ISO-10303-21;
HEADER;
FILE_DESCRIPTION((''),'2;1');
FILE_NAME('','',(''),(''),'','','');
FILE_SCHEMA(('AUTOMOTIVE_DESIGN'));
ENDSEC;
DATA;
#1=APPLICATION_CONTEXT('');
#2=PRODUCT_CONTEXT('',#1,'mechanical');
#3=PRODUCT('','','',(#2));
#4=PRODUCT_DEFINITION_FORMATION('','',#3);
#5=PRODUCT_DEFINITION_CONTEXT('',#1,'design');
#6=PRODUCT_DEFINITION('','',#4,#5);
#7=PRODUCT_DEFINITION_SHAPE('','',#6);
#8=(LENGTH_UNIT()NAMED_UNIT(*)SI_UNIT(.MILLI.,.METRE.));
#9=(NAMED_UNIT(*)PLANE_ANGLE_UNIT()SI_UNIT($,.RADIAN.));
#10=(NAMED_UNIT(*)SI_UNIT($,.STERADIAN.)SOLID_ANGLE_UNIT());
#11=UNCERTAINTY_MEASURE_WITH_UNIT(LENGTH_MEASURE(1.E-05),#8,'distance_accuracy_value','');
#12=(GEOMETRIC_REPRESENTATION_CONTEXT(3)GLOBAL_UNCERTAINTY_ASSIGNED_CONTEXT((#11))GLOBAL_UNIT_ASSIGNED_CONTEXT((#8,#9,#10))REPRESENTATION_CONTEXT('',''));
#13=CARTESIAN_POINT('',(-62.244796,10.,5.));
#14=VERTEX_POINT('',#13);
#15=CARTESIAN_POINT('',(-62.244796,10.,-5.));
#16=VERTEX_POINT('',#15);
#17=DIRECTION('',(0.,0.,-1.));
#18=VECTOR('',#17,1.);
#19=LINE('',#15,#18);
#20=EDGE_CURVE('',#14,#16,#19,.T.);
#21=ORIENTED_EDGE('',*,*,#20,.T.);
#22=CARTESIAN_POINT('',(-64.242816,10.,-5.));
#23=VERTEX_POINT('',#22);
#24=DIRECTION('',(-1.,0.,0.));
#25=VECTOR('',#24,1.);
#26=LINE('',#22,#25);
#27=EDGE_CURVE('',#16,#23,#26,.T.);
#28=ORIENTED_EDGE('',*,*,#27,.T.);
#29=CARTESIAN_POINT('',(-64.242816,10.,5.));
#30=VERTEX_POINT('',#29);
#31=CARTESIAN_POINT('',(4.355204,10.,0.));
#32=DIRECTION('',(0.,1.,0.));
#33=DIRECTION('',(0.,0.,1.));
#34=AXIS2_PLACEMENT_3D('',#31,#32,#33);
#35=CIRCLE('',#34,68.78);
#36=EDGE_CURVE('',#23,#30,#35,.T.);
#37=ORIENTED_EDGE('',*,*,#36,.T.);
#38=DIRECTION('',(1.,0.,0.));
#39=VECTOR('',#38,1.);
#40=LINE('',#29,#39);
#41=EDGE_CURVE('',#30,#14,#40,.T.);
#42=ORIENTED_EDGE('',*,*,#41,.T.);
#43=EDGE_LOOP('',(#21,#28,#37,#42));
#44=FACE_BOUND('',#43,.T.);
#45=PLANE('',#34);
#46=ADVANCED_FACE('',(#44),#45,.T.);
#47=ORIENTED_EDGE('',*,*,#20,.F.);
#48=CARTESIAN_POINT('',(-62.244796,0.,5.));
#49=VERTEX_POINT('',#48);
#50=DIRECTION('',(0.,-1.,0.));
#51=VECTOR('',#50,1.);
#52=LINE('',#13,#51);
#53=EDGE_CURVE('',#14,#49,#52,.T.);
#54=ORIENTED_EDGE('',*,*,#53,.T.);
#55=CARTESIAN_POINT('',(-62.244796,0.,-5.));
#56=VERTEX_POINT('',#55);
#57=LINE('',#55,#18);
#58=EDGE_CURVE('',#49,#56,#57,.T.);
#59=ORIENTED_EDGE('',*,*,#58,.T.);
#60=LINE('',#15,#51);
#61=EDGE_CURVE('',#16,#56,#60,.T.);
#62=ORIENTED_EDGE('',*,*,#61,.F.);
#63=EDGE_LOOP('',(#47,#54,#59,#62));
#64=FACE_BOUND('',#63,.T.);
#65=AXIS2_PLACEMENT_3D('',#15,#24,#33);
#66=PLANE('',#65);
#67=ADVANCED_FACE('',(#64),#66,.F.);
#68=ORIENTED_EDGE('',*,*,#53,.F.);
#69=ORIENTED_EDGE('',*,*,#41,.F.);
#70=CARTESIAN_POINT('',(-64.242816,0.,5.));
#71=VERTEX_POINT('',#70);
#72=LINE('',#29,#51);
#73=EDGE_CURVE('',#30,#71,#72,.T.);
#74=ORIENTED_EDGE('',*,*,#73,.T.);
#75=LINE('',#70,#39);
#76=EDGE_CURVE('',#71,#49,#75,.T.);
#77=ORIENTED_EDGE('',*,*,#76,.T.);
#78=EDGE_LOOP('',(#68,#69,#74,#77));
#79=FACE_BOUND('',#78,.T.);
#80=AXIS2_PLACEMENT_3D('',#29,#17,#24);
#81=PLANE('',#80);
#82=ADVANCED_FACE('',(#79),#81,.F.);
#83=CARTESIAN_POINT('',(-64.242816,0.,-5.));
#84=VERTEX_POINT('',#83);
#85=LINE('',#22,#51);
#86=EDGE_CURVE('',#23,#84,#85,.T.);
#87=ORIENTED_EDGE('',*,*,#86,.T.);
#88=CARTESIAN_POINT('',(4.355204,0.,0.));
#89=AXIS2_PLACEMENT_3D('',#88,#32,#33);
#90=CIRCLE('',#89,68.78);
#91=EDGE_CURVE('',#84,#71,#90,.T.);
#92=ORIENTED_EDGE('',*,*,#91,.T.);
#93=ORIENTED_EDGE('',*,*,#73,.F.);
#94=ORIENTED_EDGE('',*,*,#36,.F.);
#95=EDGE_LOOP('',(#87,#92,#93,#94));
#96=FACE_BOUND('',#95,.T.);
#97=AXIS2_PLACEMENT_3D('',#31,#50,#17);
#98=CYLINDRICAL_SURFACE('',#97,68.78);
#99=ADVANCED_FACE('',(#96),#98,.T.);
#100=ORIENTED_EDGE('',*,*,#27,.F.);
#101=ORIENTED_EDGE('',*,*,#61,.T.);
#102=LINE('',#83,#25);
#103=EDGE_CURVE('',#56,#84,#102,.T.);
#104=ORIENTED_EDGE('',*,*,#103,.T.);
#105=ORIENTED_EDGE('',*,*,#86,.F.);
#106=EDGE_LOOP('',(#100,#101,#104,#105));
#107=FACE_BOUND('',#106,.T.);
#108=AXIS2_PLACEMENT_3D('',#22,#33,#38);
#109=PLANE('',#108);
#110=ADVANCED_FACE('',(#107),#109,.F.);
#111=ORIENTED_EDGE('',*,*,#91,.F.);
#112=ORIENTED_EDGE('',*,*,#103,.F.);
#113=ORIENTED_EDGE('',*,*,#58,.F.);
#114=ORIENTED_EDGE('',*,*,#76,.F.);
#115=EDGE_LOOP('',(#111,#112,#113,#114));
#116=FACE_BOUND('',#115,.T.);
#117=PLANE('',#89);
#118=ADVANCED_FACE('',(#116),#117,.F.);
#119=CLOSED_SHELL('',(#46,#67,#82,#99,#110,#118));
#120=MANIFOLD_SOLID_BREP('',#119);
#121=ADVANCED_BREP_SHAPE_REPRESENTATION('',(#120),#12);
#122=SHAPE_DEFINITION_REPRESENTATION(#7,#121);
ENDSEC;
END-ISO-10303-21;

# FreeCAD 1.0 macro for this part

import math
import FreeCAD as App
import Part
import Sketcher
from FreeCAD import Vector
Q = App.Units.Quantity

doc = App.newDocument("Part")
body = doc.addObject("PartDesign::Body", "Body")

sketch1 = doc.addObject("Sketcher::SketchObject", "Sketch")
body.addObject(sketch1)
sketch1.AttachmentSupport = (doc.XZ_Plane, [""])
sketch1.MapMode = "FlatFace"
sketch1.addGeometry([
    Part.LineSegment(Vector(-62.2, -5, 0), Vector(-64.2, -5, 0)),
    Part.ArcOfCircle(Part.Circle(Vector(4.4, 0, 0), Vector(0, 0, 1), 68.8), math.radians(175.83), math.radians(184.17)),
    Part.LineSegment(Vector(-64.2, 5, 0), Vector(-62.2, 5, 0)),
    Part.LineSegment(Vector(-62.2, 5, 0), Vector(-62.2, -5, 0)),
], False)
sketch1.addConstraint([
    Sketcher.Constraint("Coincident", 0, 2, 1, 2),
    Sketcher.Constraint("Coincident", 1, 1, 2, 1),
    Sketcher.Constraint("Coincident", 2, 2, 3, 1),
    Sketcher.Constraint("Coincident", 3, 2, 0, 1),
    Sketcher.Constraint("Horizontal", 0),
    Sketcher.Constraint("Horizontal", 2),
    Sketcher.Constraint("Vertical", 3),
    Sketcher.Constraint("Symmetric", 0, 2, 1, 1, -1),
    Sketcher.Constraint("DistanceY", 3, 2, 3, 1, Q("10 mm")),
    Sketcher.Constraint("Radius", 1, Q("68.78 mm")),
    Sketcher.Constraint("DistanceX", 2, 2, 1, 3, Q("66.6 mm")),
    Sketcher.Constraint("DistanceX", -1, 1, 1, 3, Q("4.355204 mm")),
])
pad1 = doc.addObject("PartDesign::Pad", "Pad")
body.addObject(pad1)
pad1.Profile = sketch1
pad1.Length = 10
pad1.Reversed = True

doc.recompute()
